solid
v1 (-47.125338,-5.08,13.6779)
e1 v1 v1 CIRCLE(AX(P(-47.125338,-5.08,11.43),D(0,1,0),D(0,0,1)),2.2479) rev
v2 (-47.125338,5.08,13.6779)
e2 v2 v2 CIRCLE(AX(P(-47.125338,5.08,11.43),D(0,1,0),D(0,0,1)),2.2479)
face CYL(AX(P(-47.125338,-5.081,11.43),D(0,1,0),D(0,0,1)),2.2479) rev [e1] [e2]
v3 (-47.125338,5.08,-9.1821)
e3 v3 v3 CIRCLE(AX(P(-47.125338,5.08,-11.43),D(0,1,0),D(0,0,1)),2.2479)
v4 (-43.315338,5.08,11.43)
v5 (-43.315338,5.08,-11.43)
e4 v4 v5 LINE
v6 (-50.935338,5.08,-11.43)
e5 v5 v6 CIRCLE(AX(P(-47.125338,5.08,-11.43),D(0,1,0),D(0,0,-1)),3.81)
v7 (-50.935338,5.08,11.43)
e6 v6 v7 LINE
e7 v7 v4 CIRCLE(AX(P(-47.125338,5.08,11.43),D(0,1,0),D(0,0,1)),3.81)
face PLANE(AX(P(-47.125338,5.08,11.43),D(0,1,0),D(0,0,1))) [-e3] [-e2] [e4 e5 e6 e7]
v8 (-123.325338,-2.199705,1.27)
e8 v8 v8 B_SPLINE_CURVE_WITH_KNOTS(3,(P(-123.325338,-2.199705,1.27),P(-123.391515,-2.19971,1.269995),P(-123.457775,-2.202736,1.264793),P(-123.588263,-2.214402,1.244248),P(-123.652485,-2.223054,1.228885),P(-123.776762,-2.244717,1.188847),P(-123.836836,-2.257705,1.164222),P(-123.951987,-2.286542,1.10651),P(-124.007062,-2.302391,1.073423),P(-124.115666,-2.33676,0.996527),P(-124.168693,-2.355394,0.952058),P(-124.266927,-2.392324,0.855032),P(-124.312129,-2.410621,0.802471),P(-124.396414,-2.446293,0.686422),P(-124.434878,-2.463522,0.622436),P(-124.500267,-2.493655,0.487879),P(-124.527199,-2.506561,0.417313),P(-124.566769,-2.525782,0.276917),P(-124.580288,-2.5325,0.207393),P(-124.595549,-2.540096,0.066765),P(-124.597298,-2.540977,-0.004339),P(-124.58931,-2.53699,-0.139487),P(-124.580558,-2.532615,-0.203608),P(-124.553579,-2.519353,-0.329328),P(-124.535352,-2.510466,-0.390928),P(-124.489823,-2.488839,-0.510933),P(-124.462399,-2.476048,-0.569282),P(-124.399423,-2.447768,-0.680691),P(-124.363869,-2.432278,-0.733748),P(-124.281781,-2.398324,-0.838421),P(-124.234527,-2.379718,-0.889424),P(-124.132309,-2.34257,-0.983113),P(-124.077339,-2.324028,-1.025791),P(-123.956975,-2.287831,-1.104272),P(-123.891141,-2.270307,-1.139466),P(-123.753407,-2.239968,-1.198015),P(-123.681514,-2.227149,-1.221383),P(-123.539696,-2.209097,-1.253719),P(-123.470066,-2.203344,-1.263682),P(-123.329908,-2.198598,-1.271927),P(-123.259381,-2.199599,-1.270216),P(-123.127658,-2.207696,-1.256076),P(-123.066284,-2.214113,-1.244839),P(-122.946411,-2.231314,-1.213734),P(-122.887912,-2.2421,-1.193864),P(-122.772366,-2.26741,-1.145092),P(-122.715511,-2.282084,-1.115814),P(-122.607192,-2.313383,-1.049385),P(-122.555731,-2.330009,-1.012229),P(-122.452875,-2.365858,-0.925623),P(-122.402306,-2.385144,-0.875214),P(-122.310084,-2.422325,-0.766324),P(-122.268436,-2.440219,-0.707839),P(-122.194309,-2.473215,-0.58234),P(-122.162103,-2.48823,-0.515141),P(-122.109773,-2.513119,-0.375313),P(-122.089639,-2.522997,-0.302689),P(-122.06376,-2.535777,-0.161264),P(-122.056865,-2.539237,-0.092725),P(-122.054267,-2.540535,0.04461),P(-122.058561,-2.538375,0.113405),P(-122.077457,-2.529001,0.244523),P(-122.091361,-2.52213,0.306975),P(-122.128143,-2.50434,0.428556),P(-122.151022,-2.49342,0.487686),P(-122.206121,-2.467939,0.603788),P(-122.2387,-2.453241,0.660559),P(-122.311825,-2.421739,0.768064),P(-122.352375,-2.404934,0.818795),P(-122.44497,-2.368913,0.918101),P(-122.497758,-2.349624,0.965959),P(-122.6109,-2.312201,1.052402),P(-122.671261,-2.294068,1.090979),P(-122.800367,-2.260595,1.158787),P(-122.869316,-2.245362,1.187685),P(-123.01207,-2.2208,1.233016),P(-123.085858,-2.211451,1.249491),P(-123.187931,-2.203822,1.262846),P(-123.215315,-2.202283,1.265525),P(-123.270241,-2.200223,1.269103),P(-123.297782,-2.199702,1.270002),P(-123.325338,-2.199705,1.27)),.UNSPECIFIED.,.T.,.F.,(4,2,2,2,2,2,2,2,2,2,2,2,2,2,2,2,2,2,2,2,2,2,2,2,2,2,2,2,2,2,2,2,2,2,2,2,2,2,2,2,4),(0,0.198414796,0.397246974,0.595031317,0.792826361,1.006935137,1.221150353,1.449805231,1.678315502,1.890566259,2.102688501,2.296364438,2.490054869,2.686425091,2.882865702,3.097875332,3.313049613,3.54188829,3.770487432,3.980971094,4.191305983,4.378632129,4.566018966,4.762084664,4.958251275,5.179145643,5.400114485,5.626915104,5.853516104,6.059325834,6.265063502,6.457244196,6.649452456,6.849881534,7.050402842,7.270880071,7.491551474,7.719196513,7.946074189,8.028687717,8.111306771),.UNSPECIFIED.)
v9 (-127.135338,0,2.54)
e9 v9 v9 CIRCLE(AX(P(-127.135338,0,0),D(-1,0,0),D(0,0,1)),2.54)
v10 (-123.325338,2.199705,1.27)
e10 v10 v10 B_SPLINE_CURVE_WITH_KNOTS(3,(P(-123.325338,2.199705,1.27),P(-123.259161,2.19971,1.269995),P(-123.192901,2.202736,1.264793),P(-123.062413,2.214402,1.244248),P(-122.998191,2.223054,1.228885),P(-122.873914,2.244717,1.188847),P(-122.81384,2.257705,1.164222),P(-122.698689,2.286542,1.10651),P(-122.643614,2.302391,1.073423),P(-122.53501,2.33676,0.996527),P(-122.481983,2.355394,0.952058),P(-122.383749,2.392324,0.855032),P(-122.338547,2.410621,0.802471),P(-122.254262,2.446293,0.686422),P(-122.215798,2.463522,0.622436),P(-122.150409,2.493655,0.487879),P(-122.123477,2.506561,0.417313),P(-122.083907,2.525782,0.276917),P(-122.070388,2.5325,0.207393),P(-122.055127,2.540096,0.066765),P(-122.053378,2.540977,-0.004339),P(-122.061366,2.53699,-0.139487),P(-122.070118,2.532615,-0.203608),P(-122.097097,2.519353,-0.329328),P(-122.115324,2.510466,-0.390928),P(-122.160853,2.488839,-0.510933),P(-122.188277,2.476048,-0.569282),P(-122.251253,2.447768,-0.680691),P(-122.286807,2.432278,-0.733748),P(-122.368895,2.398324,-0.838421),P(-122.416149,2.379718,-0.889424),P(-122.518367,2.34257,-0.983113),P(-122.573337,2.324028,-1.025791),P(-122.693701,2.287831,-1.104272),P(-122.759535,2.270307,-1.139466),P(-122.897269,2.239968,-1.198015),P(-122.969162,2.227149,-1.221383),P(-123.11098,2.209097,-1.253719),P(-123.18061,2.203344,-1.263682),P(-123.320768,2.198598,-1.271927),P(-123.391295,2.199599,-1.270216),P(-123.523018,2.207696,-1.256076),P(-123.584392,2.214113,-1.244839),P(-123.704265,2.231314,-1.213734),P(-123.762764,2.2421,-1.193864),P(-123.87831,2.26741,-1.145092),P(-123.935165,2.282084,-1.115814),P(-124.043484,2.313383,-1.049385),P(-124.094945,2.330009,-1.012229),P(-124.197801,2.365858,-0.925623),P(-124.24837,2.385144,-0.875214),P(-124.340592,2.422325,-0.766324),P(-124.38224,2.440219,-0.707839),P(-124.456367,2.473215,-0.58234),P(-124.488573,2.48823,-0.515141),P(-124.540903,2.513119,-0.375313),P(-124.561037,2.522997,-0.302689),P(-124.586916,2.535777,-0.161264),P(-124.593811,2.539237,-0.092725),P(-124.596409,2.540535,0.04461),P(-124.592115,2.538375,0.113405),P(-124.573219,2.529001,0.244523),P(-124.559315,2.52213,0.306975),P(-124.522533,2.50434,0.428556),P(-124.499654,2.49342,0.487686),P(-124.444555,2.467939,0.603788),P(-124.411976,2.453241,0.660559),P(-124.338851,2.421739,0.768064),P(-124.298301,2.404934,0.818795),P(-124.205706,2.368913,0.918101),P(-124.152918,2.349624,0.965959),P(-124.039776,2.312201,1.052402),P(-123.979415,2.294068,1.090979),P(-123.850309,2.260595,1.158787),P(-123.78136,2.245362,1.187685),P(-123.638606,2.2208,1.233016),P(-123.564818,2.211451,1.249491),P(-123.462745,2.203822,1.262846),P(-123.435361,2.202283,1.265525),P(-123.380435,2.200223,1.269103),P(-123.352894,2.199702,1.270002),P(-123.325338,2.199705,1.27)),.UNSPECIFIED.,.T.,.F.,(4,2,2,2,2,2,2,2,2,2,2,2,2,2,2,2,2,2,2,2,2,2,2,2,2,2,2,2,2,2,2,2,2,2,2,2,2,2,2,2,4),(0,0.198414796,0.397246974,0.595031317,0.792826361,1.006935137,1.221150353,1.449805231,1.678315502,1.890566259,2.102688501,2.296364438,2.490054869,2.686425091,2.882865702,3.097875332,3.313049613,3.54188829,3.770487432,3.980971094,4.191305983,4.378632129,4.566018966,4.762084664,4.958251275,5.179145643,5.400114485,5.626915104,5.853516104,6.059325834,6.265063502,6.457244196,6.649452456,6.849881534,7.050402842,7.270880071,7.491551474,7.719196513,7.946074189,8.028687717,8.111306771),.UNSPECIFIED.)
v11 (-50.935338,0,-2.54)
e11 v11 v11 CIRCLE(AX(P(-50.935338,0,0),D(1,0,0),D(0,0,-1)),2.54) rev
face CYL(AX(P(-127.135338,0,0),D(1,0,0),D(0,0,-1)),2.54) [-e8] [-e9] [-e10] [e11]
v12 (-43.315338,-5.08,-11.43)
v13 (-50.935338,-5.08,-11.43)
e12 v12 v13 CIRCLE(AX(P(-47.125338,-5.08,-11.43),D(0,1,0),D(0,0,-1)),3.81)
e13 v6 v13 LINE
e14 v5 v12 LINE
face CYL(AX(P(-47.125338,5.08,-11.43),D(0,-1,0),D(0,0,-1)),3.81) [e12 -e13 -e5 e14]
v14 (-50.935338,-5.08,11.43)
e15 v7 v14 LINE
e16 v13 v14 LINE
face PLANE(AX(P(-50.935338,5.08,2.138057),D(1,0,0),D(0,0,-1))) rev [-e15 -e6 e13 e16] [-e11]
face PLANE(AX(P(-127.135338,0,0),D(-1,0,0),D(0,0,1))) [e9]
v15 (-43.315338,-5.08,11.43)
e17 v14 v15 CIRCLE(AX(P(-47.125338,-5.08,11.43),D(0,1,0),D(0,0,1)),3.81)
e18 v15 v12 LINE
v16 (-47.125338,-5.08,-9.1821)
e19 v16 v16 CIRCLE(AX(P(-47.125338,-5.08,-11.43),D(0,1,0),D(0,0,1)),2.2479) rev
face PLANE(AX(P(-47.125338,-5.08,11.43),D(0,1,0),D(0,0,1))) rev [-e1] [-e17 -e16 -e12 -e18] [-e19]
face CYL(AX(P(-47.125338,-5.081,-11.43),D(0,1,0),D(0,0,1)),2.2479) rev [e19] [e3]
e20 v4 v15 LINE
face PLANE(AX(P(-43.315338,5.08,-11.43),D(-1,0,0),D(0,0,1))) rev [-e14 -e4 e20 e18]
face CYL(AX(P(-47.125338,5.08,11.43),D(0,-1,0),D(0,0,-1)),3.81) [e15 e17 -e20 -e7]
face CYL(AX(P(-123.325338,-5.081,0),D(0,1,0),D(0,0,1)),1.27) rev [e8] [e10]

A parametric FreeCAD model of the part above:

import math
import FreeCAD as App
import Part
import Sketcher
Q = App.Units.Quantity

doc = App.newDocument("Part")
body = doc.addObject("PartDesign::Body", "Body")

# Sketch on XZ plane
sketch1 = body.newObject("Sketcher::SketchObject", "Sketch")
sketch1.AttachmentSupport = (doc.getObject("XZ_Plane"), [""])
sketch1.MapMode = "FlatFace"
sketch1.addGeometry(Part.ArcOfCircle(Part.Circle(App.Vector(-47.1, 11.4, 0), App.Vector(0, 0, 1), 3.8), math.radians(0), math.radians(180)), False)
sketch1.addGeometry(Part.LineSegment(App.Vector(-43.3, 11.4, 0), App.Vector(-43.3, -11.4, 0)), False)
sketch1.addGeometry(Part.ArcOfCircle(Part.Circle(App.Vector(-47.1, -11.4, 0), App.Vector(0, 0, 1), 3.8), math.radians(180), math.radians(360)), False)
sketch1.addGeometry(Part.LineSegment(App.Vector(-50.9, -11.4, 0), App.Vector(-50.9, 11.4, 0)), False)
sketch1.addConstraint(Sketcher.Constraint("Tangent", 0, 1, 1, 1))
sketch1.addConstraint(Sketcher.Constraint("Tangent", 1, 2, 2, 2))
sketch1.addConstraint(Sketcher.Constraint("Tangent", 2, 1, 3, 1))
sketch1.addConstraint(Sketcher.Constraint("Tangent", 3, 2, 0, 2))
sketch1.addConstraint(Sketcher.Constraint("Vertical", 1))
sketch1.addConstraint(Sketcher.Constraint("Vertical", 3))
sketch1.addConstraint(Sketcher.Constraint("Radius", 0, Q("0.15 in")))
sketch1.addConstraint(Sketcher.Constraint("DistanceY", 1, 2, 1, 1, Q("0.9 in")))
sketch1.addConstraint(Sketcher.Constraint("DistanceY", -1, 1, 0, 3, Q("0.45 in")))
sketch1.addConstraint(Sketcher.Constraint("DistanceX", 0, 3, -1, 1, Q("47.125338 mm")))
pad1 = body.newObject("PartDesign::Pad", "Pad")
pad1.Profile = sketch1
pad1.Length = Q("0.4 in")
pad1.Midplane = True

# Sketch on XZ plane
sketch2 = body.newObject("Sketcher::SketchObject", "Sketch001")
sketch2.AttachmentSupport = (doc.getObject("XZ_Plane"), [""])
sketch2.MapMode = "FlatFace"
sketch2.AttachmentOffset = App.Placement(App.Vector(0, 0, -0.2 * 25.4), App.Rotation())
sketch2.addGeometry(Part.Circle(App.Vector(-47.1, -11.4, 0), App.Vector(0, 0, 1), 2.2), False)
sketch2.addConstraint(Sketcher.Constraint("Diameter", 0, Q("0.177 in")))
sketch2.addConstraint(Sketcher.Constraint("DistanceY", 0, 3, -1, 1, Q("0.45 in")))
sketch2.addConstraint(Sketcher.Constraint("DistanceX", 0, 3, -1, 1, Q("47.125338 mm")))
pocket1 = body.newObject("PartDesign::Pocket", "Pocket")
pocket1.Profile = sketch2
pocket1.Type = "UpToFirst"
pocket1.Reversed = True

# Sketch on XZ plane
sketch3 = body.newObject("Sketcher::SketchObject", "Sketch002")
sketch3.AttachmentSupport = (doc.getObject("XZ_Plane"), [""])
sketch3.MapMode = "FlatFace"
sketch3.AttachmentOffset = App.Placement(App.Vector(0, 0, -0.2 * 25.4), App.Rotation())
sketch3.addGeometry(Part.Circle(App.Vector(-47.1, 11.4, 0), App.Vector(0, 0, 1), 2.2), False)
sketch3.addConstraint(Sketcher.Constraint("Diameter", 0, Q("0.177 in")))
sketch3.addConstraint(Sketcher.Constraint("DistanceY", -1, 1, 0, 3, Q("0.45 in")))
sketch3.addConstraint(Sketcher.Constraint("DistanceX", 0, 3, -1, 1, Q("47.125338 mm")))
pocket2 = body.newObject("PartDesign::Pocket", "Pocket001")
pocket2.Profile = sketch3
pocket2.Type = "UpToFirst"
pocket2.Reversed = True

# Sketch on YZ plane
sketch4 = body.newObject("Sketcher::SketchObject", "Sketch003")
sketch4.AttachmentSupport = (doc.getObject("YZ_Plane"), [""])
sketch4.MapMode = "FlatFace"
sketch4.AttachmentOffset = App.Placement(App.Vector(0, 0, -50.935338), App.Rotation())
sketch4.addGeometry(Part.Circle(App.Vector(0, 0, 0), App.Vector(0, 0, 1), 2.5), False)
sketch4.addConstraint(Sketcher.Constraint("Coincident", 0, 3, -1, 1))
sketch4.addConstraint(Sketcher.Constraint("Diameter", 0, Q("0.2 in")))
pad2 = body.newObject("PartDesign::Pad", "Pad001")
pad2.Profile = sketch4
pad2.Length = Q("3 in")
pad2.Reversed = True

# Sketch on XZ plane
sketch5 = body.newObject("Sketcher::SketchObject", "Sketch004")
sketch5.AttachmentSupport = (doc.getObject("XZ_Plane"), [""])
sketch5.MapMode = "FlatFace"
sketch5.AttachmentOffset = App.Placement(App.Vector(0, 0, -0.1 * 25.4), App.Rotation())
sketch5.addGeometry(Part.Circle(App.Vector(-123.3, 0, 0), App.Vector(0, 0, 1), 1.3), False)
sketch5.addConstraint(Sketcher.Constraint("PointOnObject", 0, 3, -1))
sketch5.addConstraint(Sketcher.Constraint("Diameter", 0, Q("0.1 in")))
sketch5.addConstraint(Sketcher.Constraint("DistanceX", 0, 3, -1, 1, Q("123.325338 mm")))
pocket3 = body.newObject("PartDesign::Pocket", "Pocket002")
pocket3.Profile = sketch5
pocket3.Length = Q("0.2 in")
pocket3.Reversed = True

doc.recompute()
